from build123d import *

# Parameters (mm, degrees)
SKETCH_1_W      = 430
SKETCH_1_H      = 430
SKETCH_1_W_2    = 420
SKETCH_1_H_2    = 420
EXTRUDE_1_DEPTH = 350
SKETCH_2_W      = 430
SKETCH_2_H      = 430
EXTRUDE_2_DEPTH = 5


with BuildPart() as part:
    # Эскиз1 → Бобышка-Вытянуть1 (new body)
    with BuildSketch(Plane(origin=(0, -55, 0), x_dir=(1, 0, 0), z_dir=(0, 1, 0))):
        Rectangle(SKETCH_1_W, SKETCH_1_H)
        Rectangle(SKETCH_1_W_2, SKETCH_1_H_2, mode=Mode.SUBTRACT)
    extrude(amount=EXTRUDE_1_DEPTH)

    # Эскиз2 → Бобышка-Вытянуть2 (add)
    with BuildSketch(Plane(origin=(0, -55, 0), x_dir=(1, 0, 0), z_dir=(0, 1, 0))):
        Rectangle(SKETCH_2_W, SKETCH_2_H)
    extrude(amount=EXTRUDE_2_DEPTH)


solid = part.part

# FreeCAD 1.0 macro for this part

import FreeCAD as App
import Part
import Sketcher

V = App.Vector
Q = App.Units.Quantity


def add_polygon(sketch, points):
    """Adds a closed chain of lines whose ends are joined by coincident constraints."""
    first, n = sketch.GeometryCount, len(points)
    for a, b in zip(points, points[1:] + points[:1]):
        sketch.addGeometry(Part.LineSegment(App.Vector(*a, 0), App.Vector(*b, 0)), False)
    for i in range(n):
        sketch.addConstraint(Sketcher.Constraint("Coincident", first + i, 2, first + (i + 1) % n, 1))

doc = App.newDocument("Part")
params = doc.addObject("Spreadsheet::Sheet", "Params")
for row, (alias, value) in enumerate([
    ("sketch1_width", "430 mm"),
    ("sketch1_width2", "420 mm"),
    ("pad1_length", "350 mm"),
    ("sketch2_width", "430 mm"),
    ("pad2_length", "5 mm"),
], start=1):
    params.set(f"A{row}", alias)
    params.set(f"B{row}", "=" + value)
    params.setAlias(f"B{row}", alias)

body = doc.addObject("PartDesign::Body", "Body")

# Sketch on XZ plane
sketch1 = body.newObject("Sketcher::SketchObject", "Sketch")
sketch1.AttachmentSupport = (doc.getObject("XZ_Plane"), [""])
sketch1.MapMode = "FlatFace"
sketch1.AttachmentOffset = App.Placement(V(0, 0, 55), App.Rotation())
add_polygon(sketch1, [(-215, -215), (-215, 215), (215, 215), (215, -215)])  # lines 0-3
add_polygon(sketch1, [(210, 210), (-210, 210), (-210, -210), (210, -210)])  # lines 4-7
sketch1.addConstraint(Sketcher.Constraint("Vertical", 0))
sketch1.addConstraint(Sketcher.Constraint("Horizontal", 1))
sketch1.addConstraint(Sketcher.Constraint("Vertical", 2))
sketch1.addConstraint(Sketcher.Constraint("Horizontal", 3))
sketch1.addConstraint(Sketcher.Constraint("Horizontal", 4))
sketch1.addConstraint(Sketcher.Constraint("Vertical", 5))
sketch1.addConstraint(Sketcher.Constraint("Horizontal", 6))
sketch1.addConstraint(Sketcher.Constraint("Vertical", 7))
sketch1.addConstraint(Sketcher.Constraint("Symmetric", 0, 2, 2, 2, -1, 1))
sketch1.addConstraint(Sketcher.Constraint("Symmetric", 4, 2, 6, 2, -1, 1))
sketch1.addConstraint(Sketcher.Constraint("Equal", 3, 0))
sketch1.addConstraint(Sketcher.Constraint("Equal", 6, 5))
sketch1.addConstraint(Sketcher.Constraint("DistanceX", 1, 1, 1, 2, Q("430 mm")))
sketch1.addConstraint(Sketcher.Constraint("DistanceX", 4, 2, 4, 1, Q("420 mm")))
sketch1.setExpression("Constraints[20]", "Params.sketch1_width")
sketch1.setExpression("Constraints[21]", "Params.sketch1_width2")
pad1 = body.newObject("PartDesign::Pad", "Pad")
pad1.Profile = sketch1
pad1.setExpression("Length", "Params.pad1_length")
pad1.Reversed = True

# Sketch on XZ plane
sketch2 = body.newObject("Sketcher::SketchObject", "Sketch001")
sketch2.AttachmentSupport = (doc.getObject("XZ_Plane"), [""])
sketch2.MapMode = "FlatFace"
sketch2.AttachmentOffset = App.Placement(V(0, 0, 55), App.Rotation())
add_polygon(sketch2, [(-215, -215), (-215, 215), (215, 215), (215, -215)])  # lines 0-3
sketch2.addConstraint(Sketcher.Constraint("Vertical", 0))
sketch2.addConstraint(Sketcher.Constraint("Horizontal", 1))
sketch2.addConstraint(Sketcher.Constraint("Vertical", 2))
sketch2.addConstraint(Sketcher.Constraint("Horizontal", 3))
sketch2.addConstraint(Sketcher.Constraint("Symmetric", 0, 2, 2, 2, -1, 1))
sketch2.addConstraint(Sketcher.Constraint("Equal", 3, 0))
sketch2.addConstraint(Sketcher.Constraint("DistanceX", 1, 1, 1, 2, Q("430 mm")))
sketch2.setExpression("Constraints[10]", "Params.sketch2_width")
pad2 = body.newObject("PartDesign::Pad", "Pad001")
pad2.Profile = sketch2
pad2.setExpression("Length", "Params.pad2_length")
pad2.Reversed = True

doc.recompute()
